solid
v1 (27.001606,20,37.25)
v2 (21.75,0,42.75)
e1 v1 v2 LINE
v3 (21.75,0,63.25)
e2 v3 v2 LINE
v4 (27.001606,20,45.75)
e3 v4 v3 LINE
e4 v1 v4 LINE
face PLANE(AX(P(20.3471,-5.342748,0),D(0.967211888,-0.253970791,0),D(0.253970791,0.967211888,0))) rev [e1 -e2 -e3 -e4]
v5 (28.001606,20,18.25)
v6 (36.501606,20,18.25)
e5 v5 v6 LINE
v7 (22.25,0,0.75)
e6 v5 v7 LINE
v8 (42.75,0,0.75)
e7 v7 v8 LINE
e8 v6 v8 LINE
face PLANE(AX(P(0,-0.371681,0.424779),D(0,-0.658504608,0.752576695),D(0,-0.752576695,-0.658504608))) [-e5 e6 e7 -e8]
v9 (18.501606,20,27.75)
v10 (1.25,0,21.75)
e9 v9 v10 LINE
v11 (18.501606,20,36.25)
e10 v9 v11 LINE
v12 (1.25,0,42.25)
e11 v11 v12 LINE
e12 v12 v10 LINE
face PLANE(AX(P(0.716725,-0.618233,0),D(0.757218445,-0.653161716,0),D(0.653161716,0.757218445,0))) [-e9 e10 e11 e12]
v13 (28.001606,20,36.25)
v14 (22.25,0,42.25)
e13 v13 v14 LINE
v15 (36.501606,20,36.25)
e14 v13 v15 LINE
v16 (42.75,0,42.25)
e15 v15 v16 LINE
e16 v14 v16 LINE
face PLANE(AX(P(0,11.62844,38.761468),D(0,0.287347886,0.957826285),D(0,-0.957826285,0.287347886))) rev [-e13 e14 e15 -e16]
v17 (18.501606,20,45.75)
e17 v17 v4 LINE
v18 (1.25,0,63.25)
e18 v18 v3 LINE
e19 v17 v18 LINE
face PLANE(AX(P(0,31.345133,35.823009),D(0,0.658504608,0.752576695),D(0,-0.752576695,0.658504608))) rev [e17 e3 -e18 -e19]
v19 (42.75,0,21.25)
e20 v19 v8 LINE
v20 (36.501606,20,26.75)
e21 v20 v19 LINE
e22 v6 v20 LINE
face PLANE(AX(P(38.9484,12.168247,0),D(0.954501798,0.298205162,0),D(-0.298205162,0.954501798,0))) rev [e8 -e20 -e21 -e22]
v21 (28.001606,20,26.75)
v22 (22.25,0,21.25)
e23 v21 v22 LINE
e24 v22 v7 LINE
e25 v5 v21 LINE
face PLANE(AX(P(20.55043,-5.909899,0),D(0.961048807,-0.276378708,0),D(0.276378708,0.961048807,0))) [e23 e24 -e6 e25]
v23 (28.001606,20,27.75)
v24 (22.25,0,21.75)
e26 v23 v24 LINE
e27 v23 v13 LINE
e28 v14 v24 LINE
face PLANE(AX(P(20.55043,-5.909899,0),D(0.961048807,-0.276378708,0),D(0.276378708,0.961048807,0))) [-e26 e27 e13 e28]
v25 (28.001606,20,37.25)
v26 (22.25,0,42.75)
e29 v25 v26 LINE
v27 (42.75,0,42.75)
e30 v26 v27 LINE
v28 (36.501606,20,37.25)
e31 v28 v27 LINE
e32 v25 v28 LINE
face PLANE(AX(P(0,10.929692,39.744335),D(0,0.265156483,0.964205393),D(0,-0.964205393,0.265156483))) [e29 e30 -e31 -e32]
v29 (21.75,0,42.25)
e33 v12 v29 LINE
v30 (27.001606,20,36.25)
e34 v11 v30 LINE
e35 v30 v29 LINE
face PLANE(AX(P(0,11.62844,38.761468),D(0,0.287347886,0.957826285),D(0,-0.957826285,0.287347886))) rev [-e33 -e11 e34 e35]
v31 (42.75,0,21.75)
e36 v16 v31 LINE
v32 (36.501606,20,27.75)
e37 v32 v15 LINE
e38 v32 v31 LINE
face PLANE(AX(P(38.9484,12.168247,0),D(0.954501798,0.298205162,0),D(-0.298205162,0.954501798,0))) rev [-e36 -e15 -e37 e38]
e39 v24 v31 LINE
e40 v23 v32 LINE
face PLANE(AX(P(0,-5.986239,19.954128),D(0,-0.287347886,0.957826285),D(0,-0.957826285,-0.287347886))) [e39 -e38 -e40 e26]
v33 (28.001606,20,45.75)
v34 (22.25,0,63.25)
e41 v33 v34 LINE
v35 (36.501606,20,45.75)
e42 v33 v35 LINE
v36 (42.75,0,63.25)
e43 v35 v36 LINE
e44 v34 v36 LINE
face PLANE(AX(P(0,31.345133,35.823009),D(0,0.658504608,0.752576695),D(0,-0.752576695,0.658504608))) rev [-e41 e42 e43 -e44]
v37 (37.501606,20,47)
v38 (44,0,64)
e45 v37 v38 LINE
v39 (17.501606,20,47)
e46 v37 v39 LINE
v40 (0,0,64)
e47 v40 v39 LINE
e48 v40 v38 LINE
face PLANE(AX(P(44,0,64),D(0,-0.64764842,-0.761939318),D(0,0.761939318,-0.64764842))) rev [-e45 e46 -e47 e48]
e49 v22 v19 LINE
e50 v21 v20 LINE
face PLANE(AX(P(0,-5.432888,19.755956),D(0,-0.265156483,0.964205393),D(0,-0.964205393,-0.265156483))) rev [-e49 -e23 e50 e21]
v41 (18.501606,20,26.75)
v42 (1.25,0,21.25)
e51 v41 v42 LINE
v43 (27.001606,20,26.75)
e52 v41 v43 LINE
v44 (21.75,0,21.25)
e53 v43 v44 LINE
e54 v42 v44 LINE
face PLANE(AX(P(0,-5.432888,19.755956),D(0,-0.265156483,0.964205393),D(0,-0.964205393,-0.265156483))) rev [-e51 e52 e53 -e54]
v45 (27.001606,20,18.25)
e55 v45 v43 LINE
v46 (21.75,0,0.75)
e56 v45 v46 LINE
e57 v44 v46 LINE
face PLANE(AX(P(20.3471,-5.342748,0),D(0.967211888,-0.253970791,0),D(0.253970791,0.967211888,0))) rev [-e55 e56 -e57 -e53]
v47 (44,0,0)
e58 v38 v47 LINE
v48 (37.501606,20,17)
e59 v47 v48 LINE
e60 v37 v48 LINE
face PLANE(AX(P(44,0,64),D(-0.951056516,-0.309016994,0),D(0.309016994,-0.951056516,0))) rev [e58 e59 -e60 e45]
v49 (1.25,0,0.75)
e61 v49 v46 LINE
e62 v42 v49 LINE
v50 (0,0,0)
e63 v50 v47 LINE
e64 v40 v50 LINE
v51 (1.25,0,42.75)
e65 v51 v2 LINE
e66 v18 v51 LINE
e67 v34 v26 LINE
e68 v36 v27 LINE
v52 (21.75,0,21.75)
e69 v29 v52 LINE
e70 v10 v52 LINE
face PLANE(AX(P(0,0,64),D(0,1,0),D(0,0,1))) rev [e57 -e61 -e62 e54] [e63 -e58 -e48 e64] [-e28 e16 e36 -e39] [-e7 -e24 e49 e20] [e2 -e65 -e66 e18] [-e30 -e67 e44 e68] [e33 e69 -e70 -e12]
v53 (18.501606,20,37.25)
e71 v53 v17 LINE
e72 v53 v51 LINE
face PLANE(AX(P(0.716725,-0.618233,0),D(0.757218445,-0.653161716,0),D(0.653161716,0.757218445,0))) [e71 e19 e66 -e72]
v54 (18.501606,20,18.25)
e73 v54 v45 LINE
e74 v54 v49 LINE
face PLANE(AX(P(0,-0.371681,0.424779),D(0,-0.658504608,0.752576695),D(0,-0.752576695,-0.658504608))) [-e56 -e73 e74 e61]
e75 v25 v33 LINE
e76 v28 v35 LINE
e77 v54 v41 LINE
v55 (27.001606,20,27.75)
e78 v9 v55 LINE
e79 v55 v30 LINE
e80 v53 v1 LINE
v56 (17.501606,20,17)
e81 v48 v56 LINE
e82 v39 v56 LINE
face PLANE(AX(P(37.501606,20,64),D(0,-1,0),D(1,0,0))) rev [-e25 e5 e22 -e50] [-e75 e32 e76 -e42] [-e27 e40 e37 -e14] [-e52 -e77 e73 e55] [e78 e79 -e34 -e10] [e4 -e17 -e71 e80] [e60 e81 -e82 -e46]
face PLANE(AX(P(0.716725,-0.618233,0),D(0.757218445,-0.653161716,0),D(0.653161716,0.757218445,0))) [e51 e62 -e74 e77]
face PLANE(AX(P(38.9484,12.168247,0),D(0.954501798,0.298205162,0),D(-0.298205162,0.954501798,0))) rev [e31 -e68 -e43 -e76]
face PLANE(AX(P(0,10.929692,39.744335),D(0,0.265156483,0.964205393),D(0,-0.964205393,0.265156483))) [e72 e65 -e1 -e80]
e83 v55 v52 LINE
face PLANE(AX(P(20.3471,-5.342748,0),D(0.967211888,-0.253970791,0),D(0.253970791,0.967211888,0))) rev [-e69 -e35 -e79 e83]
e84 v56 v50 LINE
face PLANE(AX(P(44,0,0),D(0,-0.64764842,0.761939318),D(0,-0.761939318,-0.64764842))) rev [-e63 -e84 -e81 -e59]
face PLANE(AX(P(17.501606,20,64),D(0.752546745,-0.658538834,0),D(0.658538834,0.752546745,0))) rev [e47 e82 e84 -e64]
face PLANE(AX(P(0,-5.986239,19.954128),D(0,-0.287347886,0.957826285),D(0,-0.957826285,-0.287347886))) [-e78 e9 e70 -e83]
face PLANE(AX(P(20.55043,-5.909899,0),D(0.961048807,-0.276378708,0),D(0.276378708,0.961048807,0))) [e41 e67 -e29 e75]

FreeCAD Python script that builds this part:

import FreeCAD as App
import Part
import Sketcher
from FreeCAD import Vector
Q = App.Units.Quantity


def add_polygon(sketch, points):
    """Adds a closed chain of lines whose ends are joined by coincident constraints."""
    first, n = sketch.GeometryCount, len(points)
    for a, b in zip(points, points[1:] + points[:1]):
        sketch.addGeometry(Part.LineSegment(App.Vector(*a, 0), App.Vector(*b, 0)), False)
    for i in range(n):
        sketch.addConstraint(Sketcher.Constraint("Coincident", first + i, 2, first + (i + 1) % n, 1))

doc = App.newDocument("Part")
body = doc.addObject("PartDesign::Body", "Body")

# Sketch on XY plane
sketch1 = body.newObject("Sketcher::SketchObject", "Sketch")
sketch1.AttachmentSupport = (doc.getObject("XY_Plane"), [""])
sketch1.MapMode = "FlatFace"
add_polygon(sketch1, [(0, 0), (44, 0), (38, 20), (18, 20)])  # lines 0-3
sketch1.addConstraint(Sketcher.Constraint("Horizontal", 0))
sketch1.addConstraint(Sketcher.Constraint("Horizontal", 2))
sketch1.addConstraint(Sketcher.Constraint("Coincident", 3, 2, -1, 1))
sketch1.addConstraint(Sketcher.Constraint("DistanceX", 0, 1, 0, 2, 44.0))
sketch1.addConstraint(Sketcher.Constraint("DistanceX", 2, 2, 2, 1, 20.0))
sketch1.addConstraint(Sketcher.Constraint("Angle", 1, Q("108 deg")))
sketch1.addConstraint(Sketcher.Constraint("DistanceY", -1, 1, 1, 2, 20.0))
pad1 = body.newObject("PartDesign::Pad", "Pad")
pad1.Profile = sketch1
pad1.Length = 64

# Sketch on YZ plane
sketch2 = body.newObject("Sketcher::SketchObject", "Sketch001")
sketch2.AttachmentSupport = (doc.getObject("YZ_Plane"), [""])
sketch2.MapMode = "FlatFace"
sketch2.AttachmentOffset = App.Placement(Vector(0, 0, 17.501606), App.Rotation())
add_polygon(sketch2, [(0, 0), (20, 17), (20, 0)])  # lines 0-2
add_polygon(sketch2, [(20, 47), (0, 64), (20, 64)])  # lines 3-5
sketch2.addConstraint(Sketcher.Constraint("Vertical", 1))
sketch2.addConstraint(Sketcher.Constraint("Horizontal", 2))
sketch2.addConstraint(Sketcher.Constraint("Horizontal", 4))
sketch2.addConstraint(Sketcher.Constraint("Vertical", 5))
sketch2.addConstraint(Sketcher.Constraint("Coincident", 2, 2, -1, 1))
sketch2.addConstraint(Sketcher.Constraint("PointOnObject", 3, 2, -2))
sketch2.addConstraint(Sketcher.Constraint("Vertical", 1, 2, 4, 2))
sketch2.addConstraint(Sketcher.Constraint("Equal", 1, 5))
sketch2.addConstraint(Sketcher.Constraint("DistanceX", 2, 2, 2, 1, 20.0))
sketch2.addConstraint(Sketcher.Constraint("DistanceY", 1, 2, 1, 1, 17.0))
sketch2.addConstraint(Sketcher.Constraint("DistanceY", -1, 1, 3, 2, 64.0))
pocket1 = body.newObject("PartDesign::Pocket", "Pocket")
pocket1.Profile = sketch2
pocket1.Type = "ThroughAll"
pocket1.Midplane = True

# Sketch on XZ plane
sketch3 = body.newObject("Sketcher::SketchObject", "Sketch002")
sketch3.AttachmentSupport = (doc.getObject("XZ_Plane"), [""])
sketch3.MapMode = "FlatFace"
sketch3.AttachmentOffset = App.Placement(Vector(0, 0, -20), App.Rotation())
add_polygon(sketch3, [(19, 18), (19, 27), (27, 27), (27, 18)])  # lines 0-3
sketch3.addConstraint(Sketcher.Constraint("Vertical", 0))
sketch3.addConstraint(Sketcher.Constraint("Horizontal", 1))
sketch3.addConstraint(Sketcher.Constraint("Vertical", 2))
sketch3.addConstraint(Sketcher.Constraint("Horizontal", 3))
sketch3.addConstraint(Sketcher.Constraint("Equal", 3, 0))
sketch3.addConstraint(Sketcher.Constraint("DistanceX", 1, 1, 1, 2, 8.5))
sketch3.addConstraint(Sketcher.Constraint("DistanceY", -1, 1, 0, 2, 26.75))
sketch3.addConstraint(Sketcher.Constraint("DistanceX", -1, 1, 0, 2, 18.501606))

# Sketch on XZ plane
sketch4 = body.newObject("Sketcher::SketchObject", "Sketch003")
sketch4.AttachmentSupport = (doc.getObject("XZ_Plane"), [""])
sketch4.MapMode = "FlatFace"
add_polygon(sketch4, [(1, 21), (1, 1), (22, 1), (22, 21)])  # lines 0-3
sketch4.addConstraint(Sketcher.Constraint("Vertical", 0))
sketch4.addConstraint(Sketcher.Constraint("Horizontal", 1))
sketch4.addConstraint(Sketcher.Constraint("Vertical", 2))
sketch4.addConstraint(Sketcher.Constraint("Horizontal", 3))
sketch4.addConstraint(Sketcher.Constraint("Equal", 3, 0))
sketch4.addConstraint(Sketcher.Constraint("DistanceX", 1, 1, 1, 2, 20.5))
sketch4.addConstraint(Sketcher.Constraint("DistanceX", -1, 1, 0, 2, 1.25))
sketch4.addConstraint(Sketcher.Constraint("DistanceY", -1, 1, 0, 2, 0.75))

subtractiveloft = body.newObject("PartDesign::SubtractiveLoft", "SubtractiveLoft")
subtractiveloft.Profile = sketch3
subtractiveloft.Sections = [sketch4]

# Sketch on XZ plane
sketch5 = body.newObject("Sketcher::SketchObject", "Sketch004")
sketch5.AttachmentSupport = (doc.getObject("XZ_Plane"), [""])
sketch5.MapMode = "FlatFace"
sketch5.AttachmentOffset = App.Placement(Vector(0, 0, -20), App.Rotation())
add_polygon(sketch5, [(19, 28), (19, 36), (27, 36), (27, 28)])  # lines 0-3
sketch5.addConstraint(Sketcher.Constraint("Vertical", 0))
sketch5.addConstraint(Sketcher.Constraint("Horizontal", 1))
sketch5.addConstraint(Sketcher.Constraint("Vertical", 2))
sketch5.addConstraint(Sketcher.Constraint("Horizontal", 3))
sketch5.addConstraint(Sketcher.Constraint("Equal", 3, 0))
sketch5.addConstraint(Sketcher.Constraint("DistanceX", 1, 1, 1, 2, 8.5))
sketch5.addConstraint(Sketcher.Constraint("DistanceY", -1, 1, 0, 2, 36.25))
sketch5.addConstraint(Sketcher.Constraint("DistanceX", -1, 1, 0, 2, 18.501606))

# Sketch on XZ plane
sketch6 = body.newObject("Sketcher::SketchObject", "Sketch005")
sketch6.AttachmentSupport = (doc.getObject("XZ_Plane"), [""])
sketch6.MapMode = "FlatFace"
add_polygon(sketch6, [(1, 42), (1, 22), (22, 22), (22, 42)])  # lines 0-3
sketch6.addConstraint(Sketcher.Constraint("Vertical", 0))
sketch6.addConstraint(Sketcher.Constraint("Horizontal", 1))
sketch6.addConstraint(Sketcher.Constraint("Vertical", 2))
sketch6.addConstraint(Sketcher.Constraint("Horizontal", 3))
sketch6.addConstraint(Sketcher.Constraint("Equal", 3, 0))
sketch6.addConstraint(Sketcher.Constraint("DistanceX", 1, 1, 1, 2, 20.5))
sketch6.addConstraint(Sketcher.Constraint("DistanceX", -1, 1, 0, 2, 1.25))
sketch6.addConstraint(Sketcher.Constraint("DistanceY", -1, 1, 0, 2, 21.75))

subtractiveloft2 = body.newObject("PartDesign::SubtractiveLoft", "SubtractiveLoft001")
subtractiveloft2.Profile = sketch5
subtractiveloft2.Sections = [sketch6]

# Sketch on XZ plane
sketch7 = body.newObject("Sketcher::SketchObject", "Sketch006")
sketch7.AttachmentSupport = (doc.getObject("XZ_Plane"), [""])
sketch7.MapMode = "FlatFace"
sketch7.AttachmentOffset = App.Placement(Vector(0, 0, -20), App.Rotation())
add_polygon(sketch7, [(19, 37), (19, 46), (27, 46), (27, 37)])  # lines 0-3
sketch7.addConstraint(Sketcher.Constraint("Vertical", 0))
sketch7.addConstraint(Sketcher.Constraint("Horizontal", 1))
sketch7.addConstraint(Sketcher.Constraint("Vertical", 2))
sketch7.addConstraint(Sketcher.Constraint("Horizontal", 3))
sketch7.addConstraint(Sketcher.Constraint("Equal", 3, 0))
sketch7.addConstraint(Sketcher.Constraint("DistanceX", 1, 1, 1, 2, 8.5))
sketch7.addConstraint(Sketcher.Constraint("DistanceY", -1, 1, 0, 2, 45.75))
sketch7.addConstraint(Sketcher.Constraint("DistanceX", -1, 1, 0, 2, 18.501606))

# Sketch on XZ plane
sketch8 = body.newObject("Sketcher::SketchObject", "Sketch007")
sketch8.AttachmentSupport = (doc.getObject("XZ_Plane"), [""])
sketch8.MapMode = "FlatFace"
add_polygon(sketch8, [(1, 63), (1, 43), (22, 43), (22, 63)])  # lines 0-3
sketch8.addConstraint(Sketcher.Constraint("Vertical", 0))
sketch8.addConstraint(Sketcher.Constraint("Horizontal", 1))
sketch8.addConstraint(Sketcher.Constraint("Vertical", 2))
sketch8.addConstraint(Sketcher.Constraint("Horizontal", 3))
sketch8.addConstraint(Sketcher.Constraint("Equal", 3, 0))
sketch8.addConstraint(Sketcher.Constraint("DistanceX", 1, 1, 1, 2, 20.5))
sketch8.addConstraint(Sketcher.Constraint("DistanceX", -1, 1, 0, 2, 1.25))
sketch8.addConstraint(Sketcher.Constraint("DistanceY", -1, 1, 0, 2, 42.75))

subtractiveloft3 = body.newObject("PartDesign::SubtractiveLoft", "SubtractiveLoft002")
subtractiveloft3.Profile = sketch7
subtractiveloft3.Sections = [sketch8]

# Sketch on XZ plane
sketch9 = body.newObject("Sketcher::SketchObject", "Sketch008")
sketch9.AttachmentSupport = (doc.getObject("XZ_Plane"), [""])
sketch9.MapMode = "FlatFace"
sketch9.AttachmentOffset = App.Placement(Vector(0, 0, -20), App.Rotation())
add_polygon(sketch9, [(28, 18), (28, 27), (37, 27), (37, 18)])  # lines 0-3
sketch9.addConstraint(Sketcher.Constraint("Vertical", 0))
sketch9.addConstraint(Sketcher.Constraint("Horizontal", 1))
sketch9.addConstraint(Sketcher.Constraint("Vertical", 2))
sketch9.addConstraint(Sketcher.Constraint("Horizontal", 3))
sketch9.addConstraint(Sketcher.Constraint("Equal", 3, 0))
sketch9.addConstraint(Sketcher.Constraint("DistanceX", 1, 1, 1, 2, 8.5))
sketch9.addConstraint(Sketcher.Constraint("DistanceY", -1, 1, 0, 2, 26.75))
sketch9.addConstraint(Sketcher.Constraint("DistanceX", -1, 1, 0, 2, 28.001606))

# Sketch on XZ plane
sketch10 = body.newObject("Sketcher::SketchObject", "Sketch009")
sketch10.AttachmentSupport = (doc.getObject("XZ_Plane"), [""])
sketch10.MapMode = "FlatFace"
add_polygon(sketch10, [(22, 21), (22, 1), (43, 1), (43, 21)])  # lines 0-3
sketch10.addConstraint(Sketcher.Constraint("Vertical", 0))
sketch10.addConstraint(Sketcher.Constraint("Horizontal", 1))
sketch10.addConstraint(Sketcher.Constraint("Vertical", 2))
sketch10.addConstraint(Sketcher.Constraint("Horizontal", 3))
sketch10.addConstraint(Sketcher.Constraint("Equal", 3, 0))
sketch10.addConstraint(Sketcher.Constraint("DistanceX", 1, 1, 1, 2, 20.5))
sketch10.addConstraint(Sketcher.Constraint("DistanceX", -1, 1, 0, 2, 22.25))
sketch10.addConstraint(Sketcher.Constraint("DistanceY", -1, 1, 0, 2, 0.75))

subtractiveloft4 = body.newObject("PartDesign::SubtractiveLoft", "SubtractiveLoft003")
subtractiveloft4.Profile = sketch9
subtractiveloft4.Sections = [sketch10]

# Sketch on XZ plane
sketch11 = body.newObject("Sketcher::SketchObject", "Sketch010")
sketch11.AttachmentSupport = (doc.getObject("XZ_Plane"), [""])
sketch11.MapMode = "FlatFace"
sketch11.AttachmentOffset = App.Placement(Vector(0, 0, -20), App.Rotation())
add_polygon(sketch11, [(28, 28), (28, 36), (37, 36), (37, 28)])  # lines 0-3
sketch11.addConstraint(Sketcher.Constraint("Vertical", 0))
sketch11.addConstraint(Sketcher.Constraint("Horizontal", 1))
sketch11.addConstraint(Sketcher.Constraint("Vertical", 2))
sketch11.addConstraint(Sketcher.Constraint("Horizontal", 3))
sketch11.addConstraint(Sketcher.Constraint("Equal", 3, 0))
sketch11.addConstraint(Sketcher.Constraint("DistanceX", 1, 1, 1, 2, 8.5))
sketch11.addConstraint(Sketcher.Constraint("DistanceY", -1, 1, 0, 2, 36.25))
sketch11.addConstraint(Sketcher.Constraint("DistanceX", -1, 1, 0, 2, 28.001606))

# Sketch on XZ plane
sketch12 = body.newObject("Sketcher::SketchObject", "Sketch011")
sketch12.AttachmentSupport = (doc.getObject("XZ_Plane"), [""])
sketch12.MapMode = "FlatFace"
add_polygon(sketch12, [(22, 42), (22, 22), (43, 22), (43, 42)])  # lines 0-3
sketch12.addConstraint(Sketcher.Constraint("Vertical", 0))
sketch12.addConstraint(Sketcher.Constraint("Horizontal", 1))
sketch12.addConstraint(Sketcher.Constraint("Vertical", 2))
sketch12.addConstraint(Sketcher.Constraint("Horizontal", 3))
sketch12.addConstraint(Sketcher.Constraint("Equal", 3, 0))
sketch12.addConstraint(Sketcher.Constraint("DistanceX", 1, 1, 1, 2, 20.5))
sketch12.addConstraint(Sketcher.Constraint("DistanceX", -1, 1, 0, 2, 22.25))
sketch12.addConstraint(Sketcher.Constraint("DistanceY", -1, 1, 0, 2, 21.75))

subtractiveloft5 = body.newObject("PartDesign::SubtractiveLoft", "SubtractiveLoft004")
subtractiveloft5.Profile = sketch11
subtractiveloft5.Sections = [sketch12]

# Sketch on XZ plane
sketch13 = body.newObject("Sketcher::SketchObject", "Sketch012")
sketch13.AttachmentSupport = (doc.getObject("XZ_Plane"), [""])
sketch13.MapMode = "FlatFace"
sketch13.AttachmentOffset = App.Placement(Vector(0, 0, -20), App.Rotation())
add_polygon(sketch13, [(28, 37), (28, 46), (37, 46), (37, 37)])  # lines 0-3
sketch13.addConstraint(Sketcher.Constraint("Vertical", 0))
sketch13.addConstraint(Sketcher.Constraint("Horizontal", 1))
sketch13.addConstraint(Sketcher.Constraint("Vertical", 2))
sketch13.addConstraint(Sketcher.Constraint("Horizontal", 3))
sketch13.addConstraint(Sketcher.Constraint("Equal", 3, 0))
sketch13.addConstraint(Sketcher.Constraint("DistanceX", 1, 1, 1, 2, 8.5))
sketch13.addConstraint(Sketcher.Constraint("DistanceY", -1, 1, 0, 2, 45.75))
sketch13.addConstraint(Sketcher.Constraint("DistanceX", -1, 1, 0, 2, 28.001606))

# Sketch on XZ plane
sketch14 = body.newObject("Sketcher::SketchObject", "Sketch013")
sketch14.AttachmentSupport = (doc.getObject("XZ_Plane"), [""])
sketch14.MapMode = "FlatFace"
add_polygon(sketch14, [(22, 63), (22, 43), (43, 43), (43, 63)])  # lines 0-3
sketch14.addConstraint(Sketcher.Constraint("Vertical", 0))
sketch14.addConstraint(Sketcher.Constraint("Horizontal", 1))
sketch14.addConstraint(Sketcher.Constraint("Vertical", 2))
sketch14.addConstraint(Sketcher.Constraint("Horizontal", 3))
sketch14.addConstraint(Sketcher.Constraint("Equal", 3, 0))
sketch14.addConstraint(Sketcher.Constraint("DistanceX", 1, 1, 1, 2, 20.5))
sketch14.addConstraint(Sketcher.Constraint("DistanceX", -1, 1, 0, 2, 22.25))
sketch14.addConstraint(Sketcher.Constraint("DistanceY", -1, 1, 0, 2, 42.75))

subtractiveloft6 = body.newObject("PartDesign::SubtractiveLoft", "SubtractiveLoft005")
subtractiveloft6.Profile = sketch13
subtractiveloft6.Sections = [sketch14]

doc.recompute()
